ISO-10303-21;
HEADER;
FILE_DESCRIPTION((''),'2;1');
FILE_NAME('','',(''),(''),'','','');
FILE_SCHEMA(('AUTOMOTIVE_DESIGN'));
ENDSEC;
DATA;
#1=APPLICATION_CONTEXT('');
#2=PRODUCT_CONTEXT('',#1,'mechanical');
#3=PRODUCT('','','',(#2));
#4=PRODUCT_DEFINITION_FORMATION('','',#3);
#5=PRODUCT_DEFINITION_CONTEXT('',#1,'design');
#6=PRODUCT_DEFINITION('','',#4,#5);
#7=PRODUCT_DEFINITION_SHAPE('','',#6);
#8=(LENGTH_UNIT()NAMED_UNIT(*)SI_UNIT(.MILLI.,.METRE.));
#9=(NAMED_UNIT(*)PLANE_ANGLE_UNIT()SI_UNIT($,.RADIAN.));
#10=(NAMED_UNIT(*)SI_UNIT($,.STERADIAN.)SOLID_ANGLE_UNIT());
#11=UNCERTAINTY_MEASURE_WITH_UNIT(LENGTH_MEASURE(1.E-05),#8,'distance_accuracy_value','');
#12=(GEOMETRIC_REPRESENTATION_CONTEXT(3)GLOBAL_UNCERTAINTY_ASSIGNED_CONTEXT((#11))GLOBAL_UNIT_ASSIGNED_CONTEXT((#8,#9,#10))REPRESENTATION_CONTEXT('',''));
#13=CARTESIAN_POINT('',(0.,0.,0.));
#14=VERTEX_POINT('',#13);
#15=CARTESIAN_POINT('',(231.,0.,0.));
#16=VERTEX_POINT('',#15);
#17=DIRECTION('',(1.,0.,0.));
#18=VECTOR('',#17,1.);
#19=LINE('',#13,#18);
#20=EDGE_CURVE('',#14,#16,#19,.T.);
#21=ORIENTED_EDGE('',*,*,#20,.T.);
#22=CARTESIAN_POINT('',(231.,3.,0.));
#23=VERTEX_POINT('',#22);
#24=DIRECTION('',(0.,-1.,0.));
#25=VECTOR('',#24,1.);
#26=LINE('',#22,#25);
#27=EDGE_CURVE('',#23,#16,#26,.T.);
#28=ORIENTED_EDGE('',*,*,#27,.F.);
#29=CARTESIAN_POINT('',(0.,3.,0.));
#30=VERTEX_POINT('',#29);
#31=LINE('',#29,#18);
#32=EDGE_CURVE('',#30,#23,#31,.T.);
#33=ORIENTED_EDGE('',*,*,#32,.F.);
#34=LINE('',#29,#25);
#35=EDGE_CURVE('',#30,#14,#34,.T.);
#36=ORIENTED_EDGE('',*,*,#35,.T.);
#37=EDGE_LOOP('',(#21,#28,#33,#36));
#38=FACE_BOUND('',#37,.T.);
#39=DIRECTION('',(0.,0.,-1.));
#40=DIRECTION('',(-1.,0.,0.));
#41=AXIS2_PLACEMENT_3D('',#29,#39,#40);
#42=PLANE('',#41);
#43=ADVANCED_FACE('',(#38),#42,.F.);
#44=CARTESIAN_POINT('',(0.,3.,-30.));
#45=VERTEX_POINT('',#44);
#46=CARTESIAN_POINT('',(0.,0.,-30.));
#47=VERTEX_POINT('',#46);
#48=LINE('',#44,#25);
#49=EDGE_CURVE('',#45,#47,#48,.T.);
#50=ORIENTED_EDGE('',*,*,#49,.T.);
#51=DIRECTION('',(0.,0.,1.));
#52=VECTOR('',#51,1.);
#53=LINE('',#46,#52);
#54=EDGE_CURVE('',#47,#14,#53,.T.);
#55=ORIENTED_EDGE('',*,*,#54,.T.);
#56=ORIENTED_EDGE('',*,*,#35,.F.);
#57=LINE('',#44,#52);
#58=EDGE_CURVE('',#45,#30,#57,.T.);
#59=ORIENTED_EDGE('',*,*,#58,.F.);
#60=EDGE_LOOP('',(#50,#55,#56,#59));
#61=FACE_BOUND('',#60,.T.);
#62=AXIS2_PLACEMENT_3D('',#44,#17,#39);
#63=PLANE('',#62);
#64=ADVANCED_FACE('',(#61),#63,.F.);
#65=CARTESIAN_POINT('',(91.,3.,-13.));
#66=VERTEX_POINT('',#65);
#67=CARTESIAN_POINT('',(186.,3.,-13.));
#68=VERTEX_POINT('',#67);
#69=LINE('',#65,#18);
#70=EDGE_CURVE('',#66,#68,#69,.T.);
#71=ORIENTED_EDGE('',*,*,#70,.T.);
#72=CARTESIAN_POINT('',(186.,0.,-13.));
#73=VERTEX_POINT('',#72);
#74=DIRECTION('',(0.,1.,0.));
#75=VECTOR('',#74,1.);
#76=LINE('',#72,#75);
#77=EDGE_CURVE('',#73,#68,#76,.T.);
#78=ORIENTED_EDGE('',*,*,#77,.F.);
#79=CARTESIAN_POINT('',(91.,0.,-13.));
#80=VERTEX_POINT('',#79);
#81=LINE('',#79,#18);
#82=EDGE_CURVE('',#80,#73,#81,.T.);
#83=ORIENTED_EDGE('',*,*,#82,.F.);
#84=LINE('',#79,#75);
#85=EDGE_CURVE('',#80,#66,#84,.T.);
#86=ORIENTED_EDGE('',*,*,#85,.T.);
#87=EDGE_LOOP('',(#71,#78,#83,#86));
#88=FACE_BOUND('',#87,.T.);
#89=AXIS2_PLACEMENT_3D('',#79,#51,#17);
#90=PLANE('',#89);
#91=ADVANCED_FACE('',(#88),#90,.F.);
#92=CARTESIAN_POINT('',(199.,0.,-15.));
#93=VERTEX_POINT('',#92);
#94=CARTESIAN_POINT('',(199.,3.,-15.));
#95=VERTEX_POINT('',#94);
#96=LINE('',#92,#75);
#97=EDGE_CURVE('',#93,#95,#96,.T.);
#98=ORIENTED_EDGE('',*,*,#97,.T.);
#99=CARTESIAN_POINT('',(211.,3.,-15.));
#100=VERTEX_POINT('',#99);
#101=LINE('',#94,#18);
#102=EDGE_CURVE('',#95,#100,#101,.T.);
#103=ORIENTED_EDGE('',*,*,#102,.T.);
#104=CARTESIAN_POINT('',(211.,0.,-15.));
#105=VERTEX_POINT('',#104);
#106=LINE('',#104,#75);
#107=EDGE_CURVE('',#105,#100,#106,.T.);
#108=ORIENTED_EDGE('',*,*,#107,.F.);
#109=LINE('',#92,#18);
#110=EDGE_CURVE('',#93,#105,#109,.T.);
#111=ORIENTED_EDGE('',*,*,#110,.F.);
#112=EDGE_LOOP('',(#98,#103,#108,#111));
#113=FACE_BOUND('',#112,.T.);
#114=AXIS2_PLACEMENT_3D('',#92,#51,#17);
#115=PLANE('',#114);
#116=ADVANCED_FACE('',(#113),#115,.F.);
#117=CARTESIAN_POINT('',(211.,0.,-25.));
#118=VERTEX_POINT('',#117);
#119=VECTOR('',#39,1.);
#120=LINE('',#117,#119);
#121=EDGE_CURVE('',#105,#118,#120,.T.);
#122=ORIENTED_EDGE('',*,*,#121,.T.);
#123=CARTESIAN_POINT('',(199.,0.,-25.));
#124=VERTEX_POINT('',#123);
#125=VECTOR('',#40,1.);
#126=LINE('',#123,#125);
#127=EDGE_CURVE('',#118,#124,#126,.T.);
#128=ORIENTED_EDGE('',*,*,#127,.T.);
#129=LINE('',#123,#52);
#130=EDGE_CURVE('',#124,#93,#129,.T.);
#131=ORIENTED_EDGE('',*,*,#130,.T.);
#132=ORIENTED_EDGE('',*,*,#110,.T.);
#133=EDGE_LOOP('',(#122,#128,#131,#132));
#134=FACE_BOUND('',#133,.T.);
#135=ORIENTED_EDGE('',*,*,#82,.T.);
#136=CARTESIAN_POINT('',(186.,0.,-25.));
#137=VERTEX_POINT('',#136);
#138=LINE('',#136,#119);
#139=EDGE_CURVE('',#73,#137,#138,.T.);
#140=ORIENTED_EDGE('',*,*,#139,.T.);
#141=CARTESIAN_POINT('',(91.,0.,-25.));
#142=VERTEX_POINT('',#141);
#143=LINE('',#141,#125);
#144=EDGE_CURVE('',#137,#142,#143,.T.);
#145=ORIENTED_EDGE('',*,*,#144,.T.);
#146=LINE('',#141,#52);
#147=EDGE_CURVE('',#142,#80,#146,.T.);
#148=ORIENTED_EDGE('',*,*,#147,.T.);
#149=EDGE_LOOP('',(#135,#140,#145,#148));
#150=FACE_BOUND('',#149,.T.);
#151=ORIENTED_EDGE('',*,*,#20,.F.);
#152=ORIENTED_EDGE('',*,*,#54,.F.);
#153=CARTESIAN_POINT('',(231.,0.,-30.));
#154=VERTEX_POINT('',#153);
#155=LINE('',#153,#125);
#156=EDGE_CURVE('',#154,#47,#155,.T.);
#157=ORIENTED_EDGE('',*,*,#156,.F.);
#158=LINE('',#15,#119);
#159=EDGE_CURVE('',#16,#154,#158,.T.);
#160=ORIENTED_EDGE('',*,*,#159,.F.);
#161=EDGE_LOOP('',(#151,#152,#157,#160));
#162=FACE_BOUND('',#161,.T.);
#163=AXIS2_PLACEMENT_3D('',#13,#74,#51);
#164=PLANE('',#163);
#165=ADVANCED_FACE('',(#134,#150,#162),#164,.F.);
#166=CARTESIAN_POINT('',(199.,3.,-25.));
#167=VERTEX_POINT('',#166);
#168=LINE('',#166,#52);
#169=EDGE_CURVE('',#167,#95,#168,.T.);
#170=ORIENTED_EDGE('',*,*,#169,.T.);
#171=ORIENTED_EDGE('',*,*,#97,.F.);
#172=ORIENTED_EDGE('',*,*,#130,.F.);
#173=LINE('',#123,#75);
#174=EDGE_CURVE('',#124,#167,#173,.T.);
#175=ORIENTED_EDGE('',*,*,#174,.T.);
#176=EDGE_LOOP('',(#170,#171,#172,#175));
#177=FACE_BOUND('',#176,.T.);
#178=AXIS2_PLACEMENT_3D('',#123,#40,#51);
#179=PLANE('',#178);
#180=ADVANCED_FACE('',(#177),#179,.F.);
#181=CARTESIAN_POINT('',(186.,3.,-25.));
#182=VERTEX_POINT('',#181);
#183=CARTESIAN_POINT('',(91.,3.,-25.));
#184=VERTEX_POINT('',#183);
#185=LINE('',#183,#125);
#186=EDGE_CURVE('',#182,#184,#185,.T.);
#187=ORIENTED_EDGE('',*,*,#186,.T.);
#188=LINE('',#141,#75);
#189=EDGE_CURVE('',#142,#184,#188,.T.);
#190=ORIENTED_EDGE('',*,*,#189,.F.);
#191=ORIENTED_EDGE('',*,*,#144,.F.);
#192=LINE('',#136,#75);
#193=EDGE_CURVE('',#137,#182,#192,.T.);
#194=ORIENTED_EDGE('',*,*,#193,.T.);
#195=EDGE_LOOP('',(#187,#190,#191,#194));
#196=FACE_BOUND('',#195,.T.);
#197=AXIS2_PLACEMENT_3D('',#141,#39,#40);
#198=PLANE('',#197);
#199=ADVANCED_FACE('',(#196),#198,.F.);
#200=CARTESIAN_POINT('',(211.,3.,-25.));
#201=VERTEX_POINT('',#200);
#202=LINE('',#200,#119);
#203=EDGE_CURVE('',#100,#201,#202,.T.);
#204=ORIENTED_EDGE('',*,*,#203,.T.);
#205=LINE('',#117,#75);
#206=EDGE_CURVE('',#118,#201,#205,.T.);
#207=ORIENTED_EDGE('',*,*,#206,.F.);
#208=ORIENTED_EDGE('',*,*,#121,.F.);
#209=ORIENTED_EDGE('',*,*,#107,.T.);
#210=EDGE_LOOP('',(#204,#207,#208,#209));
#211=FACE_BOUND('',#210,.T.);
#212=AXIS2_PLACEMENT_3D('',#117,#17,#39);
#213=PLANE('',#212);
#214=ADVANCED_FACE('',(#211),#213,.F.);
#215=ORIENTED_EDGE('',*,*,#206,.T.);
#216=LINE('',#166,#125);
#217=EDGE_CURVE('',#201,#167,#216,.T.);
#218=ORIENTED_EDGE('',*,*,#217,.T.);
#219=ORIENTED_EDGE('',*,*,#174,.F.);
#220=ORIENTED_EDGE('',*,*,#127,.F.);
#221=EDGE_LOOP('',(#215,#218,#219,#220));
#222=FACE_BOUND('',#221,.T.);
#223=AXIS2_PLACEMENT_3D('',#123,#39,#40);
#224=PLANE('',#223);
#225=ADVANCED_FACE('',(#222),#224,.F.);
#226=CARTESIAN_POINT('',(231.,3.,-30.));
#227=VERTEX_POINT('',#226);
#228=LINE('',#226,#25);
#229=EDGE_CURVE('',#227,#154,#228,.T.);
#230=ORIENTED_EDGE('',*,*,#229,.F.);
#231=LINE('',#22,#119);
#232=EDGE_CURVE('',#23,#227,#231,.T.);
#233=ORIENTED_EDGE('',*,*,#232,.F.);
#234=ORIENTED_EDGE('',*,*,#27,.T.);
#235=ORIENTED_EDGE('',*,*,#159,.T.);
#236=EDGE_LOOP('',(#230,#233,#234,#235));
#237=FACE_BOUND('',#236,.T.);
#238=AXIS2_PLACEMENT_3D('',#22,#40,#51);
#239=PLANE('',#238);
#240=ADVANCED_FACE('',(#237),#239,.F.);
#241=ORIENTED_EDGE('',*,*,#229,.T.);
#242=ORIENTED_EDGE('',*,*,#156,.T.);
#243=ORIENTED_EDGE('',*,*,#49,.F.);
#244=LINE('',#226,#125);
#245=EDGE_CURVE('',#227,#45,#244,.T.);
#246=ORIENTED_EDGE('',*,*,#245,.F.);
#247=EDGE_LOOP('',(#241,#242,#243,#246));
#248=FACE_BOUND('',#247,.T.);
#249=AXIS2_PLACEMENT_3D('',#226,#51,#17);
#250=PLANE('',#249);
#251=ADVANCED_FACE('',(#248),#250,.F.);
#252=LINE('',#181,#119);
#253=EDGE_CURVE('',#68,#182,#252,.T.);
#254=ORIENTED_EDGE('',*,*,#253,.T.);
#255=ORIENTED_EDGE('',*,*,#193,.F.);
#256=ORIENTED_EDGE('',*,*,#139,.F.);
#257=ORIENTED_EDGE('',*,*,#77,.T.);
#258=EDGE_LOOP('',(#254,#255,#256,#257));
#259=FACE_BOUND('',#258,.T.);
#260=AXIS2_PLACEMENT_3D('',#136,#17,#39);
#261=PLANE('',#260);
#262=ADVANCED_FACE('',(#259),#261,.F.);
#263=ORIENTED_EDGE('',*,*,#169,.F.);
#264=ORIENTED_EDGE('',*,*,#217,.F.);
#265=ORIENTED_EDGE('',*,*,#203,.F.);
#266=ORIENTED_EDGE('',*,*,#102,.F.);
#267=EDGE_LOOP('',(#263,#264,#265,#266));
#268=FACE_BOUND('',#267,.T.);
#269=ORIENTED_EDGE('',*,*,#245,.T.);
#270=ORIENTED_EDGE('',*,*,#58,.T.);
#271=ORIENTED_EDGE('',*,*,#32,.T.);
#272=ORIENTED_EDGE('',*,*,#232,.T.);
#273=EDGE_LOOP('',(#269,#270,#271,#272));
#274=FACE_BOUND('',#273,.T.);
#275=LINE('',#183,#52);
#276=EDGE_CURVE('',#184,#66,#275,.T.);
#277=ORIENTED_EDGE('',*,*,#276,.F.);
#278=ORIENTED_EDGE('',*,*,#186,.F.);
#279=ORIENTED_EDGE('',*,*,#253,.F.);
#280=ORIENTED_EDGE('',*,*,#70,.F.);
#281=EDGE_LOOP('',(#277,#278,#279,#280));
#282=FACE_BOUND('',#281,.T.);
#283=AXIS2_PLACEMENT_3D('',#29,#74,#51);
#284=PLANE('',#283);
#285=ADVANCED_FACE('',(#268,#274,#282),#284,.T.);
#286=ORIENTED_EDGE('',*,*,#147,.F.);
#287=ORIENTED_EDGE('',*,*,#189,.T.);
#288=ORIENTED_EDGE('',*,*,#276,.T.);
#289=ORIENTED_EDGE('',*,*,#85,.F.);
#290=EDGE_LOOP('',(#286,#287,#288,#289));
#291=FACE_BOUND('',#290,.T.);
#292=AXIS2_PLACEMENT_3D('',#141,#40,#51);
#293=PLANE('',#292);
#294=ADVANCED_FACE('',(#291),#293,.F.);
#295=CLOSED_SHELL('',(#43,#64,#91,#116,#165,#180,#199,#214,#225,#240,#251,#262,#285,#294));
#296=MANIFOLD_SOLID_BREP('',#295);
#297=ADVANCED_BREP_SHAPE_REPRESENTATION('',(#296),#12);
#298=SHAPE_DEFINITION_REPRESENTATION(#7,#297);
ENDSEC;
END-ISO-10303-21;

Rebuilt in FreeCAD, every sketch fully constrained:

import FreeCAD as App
import Part
import Sketcher

V = App.Vector
Q = App.Units.Quantity

doc = App.newDocument("Part")
body = doc.addObject("PartDesign::Body", "Body")

sketch1 = doc.addObject("Sketcher::SketchObject", "Sketch")
body.addObject(sketch1)
sketch1.AttachmentSupport = (doc.XZ_Plane, [""])
sketch1.MapMode = "FlatFace"
sketch1.addGeometry(Part.LineSegment(V(0, -30, 0), V(0, 0, 0)), False)
sketch1.addGeometry(Part.LineSegment(V(0, 0, 0), V(231, 0, 0)), False)
sketch1.addGeometry(Part.LineSegment(V(231, 0, 0), V(231, -30, 0)), False)
sketch1.addGeometry(Part.LineSegment(V(231, -30, 0), V(0, -30, 0)), False)
sketch1.addConstraint(Sketcher.Constraint("Coincident", 0, 2, 1, 1))
sketch1.addConstraint(Sketcher.Constraint("Coincident", 1, 2, 2, 1))
sketch1.addConstraint(Sketcher.Constraint("Coincident", 2, 2, 3, 1))
sketch1.addConstraint(Sketcher.Constraint("Coincident", 3, 2, 0, 1))
sketch1.addConstraint(Sketcher.Constraint("Vertical", 0))
sketch1.addConstraint(Sketcher.Constraint("Horizontal", 1))
sketch1.addConstraint(Sketcher.Constraint("Vertical", 2))
sketch1.addConstraint(Sketcher.Constraint("Horizontal", 3))
sketch1.addConstraint(Sketcher.Constraint("Coincident", 0, 2, -1, 1))
sketch1.addConstraint(Sketcher.Constraint("DistanceX", 1, 1, 1, 2, Q("231 mm")))
sketch1.addConstraint(Sketcher.Constraint("DistanceY", 0, 1, 0, 2, Q("30 mm")))
pad1 = doc.addObject("PartDesign::Pad", "Pad")
body.addObject(pad1)
pad1.Profile = sketch1
pad1.Length = 3
pad1.Reversed = True

sketch2 = doc.addObject("Sketcher::SketchObject", "Sketch001")
body.addObject(sketch2)
sketch2.AttachmentSupport = (doc.XZ_Plane, [""])
sketch2.MapMode = "FlatFace"
sketch2.AttachmentOffset = App.Placement(V(0, 0, -3), App.Rotation())
sketch2.addGeometry(Part.LineSegment(V(91, -25, 0), V(91, -13, 0)), False)
sketch2.addGeometry(Part.LineSegment(V(91, -13, 0), V(186, -13, 0)), False)
sketch2.addGeometry(Part.LineSegment(V(186, -13, 0), V(186, -25, 0)), False)
sketch2.addGeometry(Part.LineSegment(V(186, -25, 0), V(91, -25, 0)), False)
sketch2.addGeometry(Part.LineSegment(V(199, -25, 0), V(199, -15, 0)), False)
sketch2.addGeometry(Part.LineSegment(V(199, -15, 0), V(211, -15, 0)), False)
sketch2.addGeometry(Part.LineSegment(V(211, -15, 0), V(211, -25, 0)), False)
sketch2.addGeometry(Part.LineSegment(V(211, -25, 0), V(199, -25, 0)), False)
sketch2.addConstraint(Sketcher.Constraint("Coincident", 0, 2, 1, 1))
sketch2.addConstraint(Sketcher.Constraint("Coincident", 1, 2, 2, 1))
sketch2.addConstraint(Sketcher.Constraint("Coincident", 2, 2, 3, 1))
sketch2.addConstraint(Sketcher.Constraint("Coincident", 3, 2, 0, 1))
sketch2.addConstraint(Sketcher.Constraint("Coincident", 4, 2, 5, 1))
sketch2.addConstraint(Sketcher.Constraint("Coincident", 5, 2, 6, 1))
sketch2.addConstraint(Sketcher.Constraint("Coincident", 6, 2, 7, 1))
sketch2.addConstraint(Sketcher.Constraint("Coincident", 7, 2, 4, 1))
sketch2.addConstraint(Sketcher.Constraint("Vertical", 0))
sketch2.addConstraint(Sketcher.Constraint("Horizontal", 1))
sketch2.addConstraint(Sketcher.Constraint("Vertical", 2))
sketch2.addConstraint(Sketcher.Constraint("Horizontal", 3))
sketch2.addConstraint(Sketcher.Constraint("Vertical", 4))
sketch2.addConstraint(Sketcher.Constraint("Horizontal", 5))
sketch2.addConstraint(Sketcher.Constraint("Vertical", 6))
sketch2.addConstraint(Sketcher.Constraint("Horizontal", 7))
sketch2.addConstraint(Sketcher.Constraint("Horizontal", 3, 2, 6, 2))
sketch2.addConstraint(Sketcher.Constraint("Equal", 7, 0))
sketch2.addConstraint(Sketcher.Constraint("DistanceX", 1, 1, 1, 2, Q("95 mm")))
sketch2.addConstraint(Sketcher.Constraint("DistanceX", 5, 1, 5, 2, Q("12 mm")))
sketch2.addConstraint(Sketcher.Constraint("DistanceY", 4, 1, 4, 2, Q("10 mm")))
sketch2.addConstraint(Sketcher.Constraint("DistanceX", -1, 1, 0, 2, Q("91 mm")))
sketch2.addConstraint(Sketcher.Constraint("DistanceY", 0, 2, -1, 1, Q("13 mm")))
sketch2.addConstraint(Sketcher.Constraint("DistanceX", -1, 1, 4, 2, Q("199 mm")))
pocket1 = doc.addObject("PartDesign::Pocket", "Pocket")
body.addObject(pocket1)
pocket1.Profile = sketch2
pocket1.Type = "ThroughAll"
pocket1.Reversed = True

doc.recompute()
